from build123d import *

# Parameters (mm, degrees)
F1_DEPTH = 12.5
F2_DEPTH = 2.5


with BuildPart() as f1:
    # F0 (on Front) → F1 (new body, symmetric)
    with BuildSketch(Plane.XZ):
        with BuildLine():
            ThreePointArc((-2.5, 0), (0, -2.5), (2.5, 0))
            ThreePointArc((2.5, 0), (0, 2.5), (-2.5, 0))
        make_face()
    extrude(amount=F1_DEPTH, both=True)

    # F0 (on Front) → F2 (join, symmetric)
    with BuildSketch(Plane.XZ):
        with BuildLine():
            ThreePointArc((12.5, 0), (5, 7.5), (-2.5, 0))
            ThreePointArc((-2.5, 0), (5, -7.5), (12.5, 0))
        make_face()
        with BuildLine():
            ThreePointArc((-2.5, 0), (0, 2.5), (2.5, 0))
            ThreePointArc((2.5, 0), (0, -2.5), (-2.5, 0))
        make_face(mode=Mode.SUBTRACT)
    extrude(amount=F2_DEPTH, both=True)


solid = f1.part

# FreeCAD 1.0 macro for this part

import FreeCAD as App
import Part
import Sketcher

doc = App.newDocument("Part")
body = doc.addObject("PartDesign::Body", "Body")

# Sketch on XZ plane
sketch1 = body.newObject("Sketcher::SketchObject", "Sketch")
sketch1.AttachmentSupport = (doc.getObject("XZ_Plane"), [""])
sketch1.MapMode = "FlatFace"
sketch1.addGeometry(Part.Circle(App.Vector(0, 0, 0), App.Vector(0, 0, 1), 2.5), False)
sketch1.addConstraint([
    Sketcher.Constraint("Coincident", 0, 3, -1, 1),
    Sketcher.Constraint("Diameter", 0, 5.0),
])
pad1 = body.newObject("PartDesign::Pad", "Pad")
pad1.Profile = sketch1
pad1.Length = 25
pad1.Midplane = True

# Sketch on XZ plane
sketch2 = body.newObject("Sketcher::SketchObject", "Sketch001")
sketch2.AttachmentSupport = (doc.getObject("XZ_Plane"), [""])
sketch2.MapMode = "FlatFace"
sketch2.addGeometry([
    Part.Circle(App.Vector(5, 0, 0), App.Vector(0, 0, 1), 7.5),
    Part.Circle(App.Vector(0, 0, 0), App.Vector(0, 0, 1), 2.5),
], False)
sketch2.addConstraint([
    Sketcher.Constraint("Coincident", 1, 3, -1, 1),
    Sketcher.Constraint("PointOnObject", 0, 3, -1),
    Sketcher.Constraint("Diameter", 0, 15.0),
    Sketcher.Constraint("Diameter", 1, 5.0),
    Sketcher.Constraint("DistanceX", -1, 1, 0, 3, 5.0),
])
pad2 = body.newObject("PartDesign::Pad", "Pad001")
pad2.Profile = sketch2
pad2.Length = 5
pad2.Midplane = True

doc.recompute()
